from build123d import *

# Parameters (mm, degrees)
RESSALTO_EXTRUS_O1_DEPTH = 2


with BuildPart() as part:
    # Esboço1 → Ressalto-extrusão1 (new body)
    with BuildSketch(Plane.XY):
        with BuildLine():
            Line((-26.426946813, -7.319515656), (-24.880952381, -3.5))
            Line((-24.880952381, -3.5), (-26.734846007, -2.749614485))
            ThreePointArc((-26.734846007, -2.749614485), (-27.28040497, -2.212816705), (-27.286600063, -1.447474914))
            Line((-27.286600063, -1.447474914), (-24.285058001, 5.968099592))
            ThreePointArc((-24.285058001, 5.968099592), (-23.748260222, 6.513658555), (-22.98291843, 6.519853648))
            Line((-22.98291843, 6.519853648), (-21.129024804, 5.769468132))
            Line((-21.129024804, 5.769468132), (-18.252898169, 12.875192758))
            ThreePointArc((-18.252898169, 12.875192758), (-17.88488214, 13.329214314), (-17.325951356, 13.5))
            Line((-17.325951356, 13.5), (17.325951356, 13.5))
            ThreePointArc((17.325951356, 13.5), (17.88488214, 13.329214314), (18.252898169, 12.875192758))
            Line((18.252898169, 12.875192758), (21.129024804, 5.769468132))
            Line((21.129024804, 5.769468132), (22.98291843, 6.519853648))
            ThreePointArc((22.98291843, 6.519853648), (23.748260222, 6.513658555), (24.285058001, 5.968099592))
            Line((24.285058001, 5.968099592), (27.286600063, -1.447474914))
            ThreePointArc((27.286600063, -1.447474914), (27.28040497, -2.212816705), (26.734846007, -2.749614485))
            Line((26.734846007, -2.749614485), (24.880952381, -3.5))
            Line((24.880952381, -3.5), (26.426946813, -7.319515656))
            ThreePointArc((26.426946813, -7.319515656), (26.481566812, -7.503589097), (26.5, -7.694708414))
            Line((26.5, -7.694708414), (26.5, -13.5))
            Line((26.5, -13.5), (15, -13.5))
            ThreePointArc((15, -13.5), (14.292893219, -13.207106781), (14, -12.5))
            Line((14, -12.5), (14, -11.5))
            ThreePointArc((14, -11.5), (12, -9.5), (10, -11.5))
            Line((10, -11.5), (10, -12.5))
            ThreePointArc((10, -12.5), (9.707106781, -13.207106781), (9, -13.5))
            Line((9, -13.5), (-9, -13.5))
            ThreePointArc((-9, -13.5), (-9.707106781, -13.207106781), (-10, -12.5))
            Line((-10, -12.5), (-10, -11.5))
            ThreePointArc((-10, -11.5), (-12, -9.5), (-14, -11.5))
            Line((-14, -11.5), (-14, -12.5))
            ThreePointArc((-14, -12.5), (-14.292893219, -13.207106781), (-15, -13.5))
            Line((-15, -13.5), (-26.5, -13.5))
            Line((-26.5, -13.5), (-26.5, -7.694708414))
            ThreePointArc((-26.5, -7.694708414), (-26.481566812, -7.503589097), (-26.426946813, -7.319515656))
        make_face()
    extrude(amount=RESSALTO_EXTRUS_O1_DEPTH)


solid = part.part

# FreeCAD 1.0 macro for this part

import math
import FreeCAD as App
import Part
import Sketcher
from FreeCAD import Vector
Q = App.Units.Quantity

doc = App.newDocument("Part")
body = doc.addObject("PartDesign::Body", "Body")

# Sketch on XY plane
sketch1 = body.newObject("Sketcher::SketchObject", "Sketch")
sketch1.AttachmentSupport = (doc.getObject("XY_Plane"), [""])
sketch1.MapMode = "FlatFace"
sketch1.addGeometry(Part.LineSegment(Vector(-24.88, -3.5, 0), Vector(-26.43, -7.32, 0)), False)
sketch1.addGeometry(Part.ArcOfCircle(Part.Circle(Vector(-25.5, -7.69, 0), Vector(0, 0, 1), 1), math.radians(158), math.radians(180)), False)
sketch1.addGeometry(Part.LineSegment(Vector(-26.5, -7.69, 0), Vector(-26.5, -13.5, 0)), False)
sketch1.addGeometry(Part.LineSegment(Vector(-26.5, -13.5, 0), Vector(-15, -13.5, 0)), False)
sketch1.addGeometry(Part.ArcOfCircle(Part.Circle(Vector(-15, -12.5, 0), Vector(0, 0, 1), 1), math.radians(-90), math.radians(0)), False)
sketch1.addGeometry(Part.LineSegment(Vector(-14, -12.5, 0), Vector(-14, -11.5, 0)), False)
sketch1.addGeometry(Part.ArcOfCircle(Part.Circle(Vector(-12, -11.5, 0), Vector(0, 0, 1), 2), math.radians(0), math.radians(180)), False)
sketch1.addGeometry(Part.LineSegment(Vector(-10, -11.5, 0), Vector(-10, -12.5, 0)), False)
sketch1.addGeometry(Part.ArcOfCircle(Part.Circle(Vector(-9, -12.5, 0), Vector(0, 0, 1), 1), math.radians(-180), math.radians(-90)), False)
sketch1.addGeometry(Part.LineSegment(Vector(-9, -13.5, 0), Vector(9, -13.5, 0)), False)
sketch1.addGeometry(Part.ArcOfCircle(Part.Circle(Vector(9, -12.5, 0), Vector(0, 0, 1), 1), math.radians(-90), math.radians(0)), False)
sketch1.addGeometry(Part.LineSegment(Vector(10, -12.5, 0), Vector(10, -11.5, 0)), False)
sketch1.addGeometry(Part.ArcOfCircle(Part.Circle(Vector(12, -11.5, 0), Vector(0, 0, 1), 2), math.radians(0), math.radians(180)), False)
sketch1.addGeometry(Part.LineSegment(Vector(14, -11.5, 0), Vector(14, -12.5, 0)), False)
sketch1.addGeometry(Part.ArcOfCircle(Part.Circle(Vector(15, -12.5, 0), Vector(0, 0, 1), 1), math.radians(-180), math.radians(-90)), False)
sketch1.addGeometry(Part.LineSegment(Vector(15, -13.5, 0), Vector(26.5, -13.5, 0)), False)
sketch1.addGeometry(Part.LineSegment(Vector(26.5, -13.5, 0), Vector(26.5, -7.69, 0)), False)
sketch1.addGeometry(Part.ArcOfCircle(Part.Circle(Vector(25.5, -7.69, 0), Vector(0, 0, 1), 1), math.radians(0), math.radians(22)), False)
sketch1.addGeometry(Part.LineSegment(Vector(26.43, -7.32, 0), Vector(24.88, -3.5, 0)), False)
sketch1.addGeometry(Part.LineSegment(Vector(24.88, -3.5, 0), Vector(26.73, -2.75, 0)), False)
sketch1.addGeometry(Part.ArcOfCircle(Part.Circle(Vector(26.36, -1.82, 0), Vector(0, 0, 1), 1), math.radians(-68), math.radians(22)), False)
sketch1.addGeometry(Part.LineSegment(Vector(27.29, -1.45, 0), Vector(24.29, 5.97, 0)), False)
sketch1.addGeometry(Part.ArcOfCircle(Part.Circle(Vector(23.36, 5.59, 0), Vector(0, 0, 1), 1), math.radians(22), math.radians(112)), False)
sketch1.addGeometry(Part.LineSegment(Vector(22.98, 6.52, 0), Vector(21.13, 5.77, 0)), False)
sketch1.addGeometry(Part.LineSegment(Vector(21.13, 5.77, 0), Vector(18.25, 12.88, 0)), False)
sketch1.addGeometry(Part.ArcOfCircle(Part.Circle(Vector(17.33, 12.5, 0), Vector(0, 0, 1), 1), math.radians(22), math.radians(90)), False)
sketch1.addGeometry(Part.LineSegment(Vector(17.33, 13.5, 0), Vector(-17.33, 13.5, 0)), False)
sketch1.addGeometry(Part.ArcOfCircle(Part.Circle(Vector(-17.33, 12.5, 0), Vector(0, 0, 1), 1), math.radians(90), math.radians(158)), False)
sketch1.addGeometry(Part.LineSegment(Vector(-18.25, 12.88, 0), Vector(-21.13, 5.77, 0)), False)
sketch1.addGeometry(Part.LineSegment(Vector(-21.13, 5.77, 0), Vector(-22.98, 6.52, 0)), False)
sketch1.addGeometry(Part.ArcOfCircle(Part.Circle(Vector(-23.36, 5.59, 0), Vector(0, 0, 1), 1), math.radians(68), math.radians(158)), False)
sketch1.addGeometry(Part.LineSegment(Vector(-24.29, 5.97, 0), Vector(-27.29, -1.45, 0)), False)
sketch1.addGeometry(Part.ArcOfCircle(Part.Circle(Vector(-26.36, -1.82, 0), Vector(0, 0, 1), 1), math.radians(158), math.radians(248)), False)
sketch1.addGeometry(Part.LineSegment(Vector(-26.73, -2.75, 0), Vector(-24.88, -3.5, 0)), False)
sketch1.addConstraint(Sketcher.Constraint("Tangent", 0, 2, 1, 1))
sketch1.addConstraint(Sketcher.Constraint("Tangent", 1, 2, 2, 1))
sketch1.addConstraint(Sketcher.Constraint("Coincident", 2, 2, 3, 1))
sketch1.addConstraint(Sketcher.Constraint("Tangent", 3, 2, 4, 1))
sketch1.addConstraint(Sketcher.Constraint("Tangent", 4, 2, 5, 1))
sketch1.addConstraint(Sketcher.Constraint("Tangent", 5, 2, 6, 2))
sketch1.addConstraint(Sketcher.Constraint("Tangent", 6, 1, 7, 1))
sketch1.addConstraint(Sketcher.Constraint("Tangent", 7, 2, 8, 1))
sketch1.addConstraint(Sketcher.Constraint("Tangent", 8, 2, 9, 1))
sketch1.addConstraint(Sketcher.Constraint("Tangent", 9, 2, 10, 1))
sketch1.addConstraint(Sketcher.Constraint("Tangent", 10, 2, 11, 1))
sketch1.addConstraint(Sketcher.Constraint("Tangent", 11, 2, 12, 2))
sketch1.addConstraint(Sketcher.Constraint("Tangent", 12, 1, 13, 1))
sketch1.addConstraint(Sketcher.Constraint("Tangent", 13, 2, 14, 1))
sketch1.addConstraint(Sketcher.Constraint("Tangent", 14, 2, 15, 1))
sketch1.addConstraint(Sketcher.Constraint("Coincident", 15, 2, 16, 1))
sketch1.addConstraint(Sketcher.Constraint("Tangent", 16, 2, 17, 1))
sketch1.addConstraint(Sketcher.Constraint("Tangent", 17, 2, 18, 1))
sketch1.addConstraint(Sketcher.Constraint("Coincident", 18, 2, 19, 1))
sketch1.addConstraint(Sketcher.Constraint("Tangent", 19, 2, 20, 1))
sketch1.addConstraint(Sketcher.Constraint("Tangent", 20, 2, 21, 1))
sketch1.addConstraint(Sketcher.Constraint("Tangent", 21, 2, 22, 1))
sketch1.addConstraint(Sketcher.Constraint("Tangent", 22, 2, 23, 1))
sketch1.addConstraint(Sketcher.Constraint("Coincident", 23, 2, 24, 1))
sketch1.addConstraint(Sketcher.Constraint("Tangent", 24, 2, 25, 1))
sketch1.addConstraint(Sketcher.Constraint("Tangent", 25, 2, 26, 1))
sketch1.addConstraint(Sketcher.Constraint("Tangent", 26, 2, 27, 1))
sketch1.addConstraint(Sketcher.Constraint("Tangent", 27, 2, 28, 1))
sketch1.addConstraint(Sketcher.Constraint("Coincident", 28, 2, 29, 1))
sketch1.addConstraint(Sketcher.Constraint("Tangent", 29, 2, 30, 1))
sketch1.addConstraint(Sketcher.Constraint("Tangent", 30, 2, 31, 1))
sketch1.addConstraint(Sketcher.Constraint("Tangent", 31, 2, 32, 1))
sketch1.addConstraint(Sketcher.Constraint("Tangent", 32, 2, 33, 1))
sketch1.addConstraint(Sketcher.Constraint("Coincident", 33, 2, 0, 1))
sketch1.addConstraint(Sketcher.Constraint("Vertical", 2))
sketch1.addConstraint(Sketcher.Constraint("Horizontal", 3))
sketch1.addConstraint(Sketcher.Constraint("Vertical", 5))
sketch1.addConstraint(Sketcher.Constraint("Vertical", 7))
sketch1.addConstraint(Sketcher.Constraint("Horizontal", 9))
sketch1.addConstraint(Sketcher.Constraint("Vertical", 11))
sketch1.addConstraint(Sketcher.Constraint("Vertical", 13))
sketch1.addConstraint(Sketcher.Constraint("Horizontal", 15))
sketch1.addConstraint(Sketcher.Constraint("Vertical", 16))
sketch1.addConstraint(Sketcher.Constraint("Horizontal", 26))
sketch1.addConstraint(Sketcher.Constraint("Equal", 1, 4))
sketch1.addConstraint(Sketcher.Constraint("Equal", 4, 8))
sketch1.addConstraint(Sketcher.Constraint("Equal", 8, 10))
sketch1.addConstraint(Sketcher.Constraint("Equal", 6, 12))
sketch1.addConstraint(Sketcher.Constraint("Equal", 10, 14))
sketch1.addConstraint(Sketcher.Constraint("Equal", 14, 17))
sketch1.addConstraint(Sketcher.Constraint("Equal", 17, 20))
sketch1.addConstraint(Sketcher.Constraint("Equal", 20, 22))
sketch1.addConstraint(Sketcher.Constraint("Equal", 22, 25))
sketch1.addConstraint(Sketcher.Constraint("Equal", 25, 27))
sketch1.addConstraint(Sketcher.Constraint("Equal", 27, 30))
sketch1.addConstraint(Sketcher.Constraint("Equal", 30, 32))
sketch1.addConstraint(Sketcher.Constraint("Symmetric", 6, 3, 12, 3, -2))
sketch1.addConstraint(Sketcher.Constraint("Symmetric", 1, 3, 17, 3, -2))
sketch1.addConstraint(Sketcher.Constraint("Symmetric", 22, 3, 30, 3, -2))
sketch1.addConstraint(Sketcher.Constraint("Symmetric", 20, 3, 32, 3, -2))
sketch1.addConstraint(Sketcher.Constraint("Symmetric", 24, 2, 27, 2, -2))
sketch1.addConstraint(Sketcher.Constraint("Symmetric", 18, 2, 33, 2, -2))
sketch1.addConstraint(Sketcher.Constraint("Perpendicular", 18, 19))
sketch1.addConstraint(Sketcher.Constraint("Perpendicular", 19, 21))
sketch1.addConstraint(Sketcher.Constraint("Perpendicular", 21, 23))
sketch1.addConstraint(Sketcher.Constraint("Perpendicular", 23, 24))
sketch1.addConstraint(Sketcher.Constraint("Perpendicular", 28, 29))
sketch1.addConstraint(Sketcher.Constraint("Horizontal", 4, 3, 8, 3))
sketch1.addConstraint(Sketcher.Constraint("Horizontal", 10, 3, 14, 3))
sketch1.addConstraint(Sketcher.Constraint("Equal", 19, 23))
sketch1.addConstraint(Sketcher.Constraint("Radius", 1, Q("1 mm")))
sketch1.addConstraint(Sketcher.Constraint("Radius", 6, Q("2 mm")))
sketch1.addConstraint(Sketcher.Constraint("DistanceX", 9, 1, 9, 2, Q("18 mm")))
sketch1.addConstraint(Sketcher.Constraint("DistanceY", 5, 1, 5, 2, Q("1 mm")))
sketch1.addConstraint(Sketcher.Constraint("Distance", 19, Q("2 mm")))
sketch1.addConstraint(Sketcher.Constraint("Distance", 21, Q("8 mm")))
sketch1.addConstraint(Sketcher.Constraint("DistanceX", 3, 1, 3, 2, Q("11.5 mm")))
sketch1.addConstraint(Sketcher.Constraint("DistanceY", 12, 3, 25, 3, Q("24 mm")))
sketch1.addConstraint(Sketcher.Constraint("DistanceY", 4, 3, -1, 1, Q("12.5 mm")))
sketch1.addConstraint(Sketcher.Constraint("DistanceY", 18, 2, -1, 1, Q("3.5 mm")))
sketch1.addConstraint(Sketcher.Constraint("DistanceY", 2, 2, 2, 1, Q("5.805292 mm")))
sketch1.addConstraint(Sketcher.Constraint("DistanceX", -1, 1, 20, 2, Q("27.2866 mm")))
pad1 = body.newObject("PartDesign::Pad", "Pad")
pad1.Profile = sketch1
pad1.Length = 2

doc.recompute()
